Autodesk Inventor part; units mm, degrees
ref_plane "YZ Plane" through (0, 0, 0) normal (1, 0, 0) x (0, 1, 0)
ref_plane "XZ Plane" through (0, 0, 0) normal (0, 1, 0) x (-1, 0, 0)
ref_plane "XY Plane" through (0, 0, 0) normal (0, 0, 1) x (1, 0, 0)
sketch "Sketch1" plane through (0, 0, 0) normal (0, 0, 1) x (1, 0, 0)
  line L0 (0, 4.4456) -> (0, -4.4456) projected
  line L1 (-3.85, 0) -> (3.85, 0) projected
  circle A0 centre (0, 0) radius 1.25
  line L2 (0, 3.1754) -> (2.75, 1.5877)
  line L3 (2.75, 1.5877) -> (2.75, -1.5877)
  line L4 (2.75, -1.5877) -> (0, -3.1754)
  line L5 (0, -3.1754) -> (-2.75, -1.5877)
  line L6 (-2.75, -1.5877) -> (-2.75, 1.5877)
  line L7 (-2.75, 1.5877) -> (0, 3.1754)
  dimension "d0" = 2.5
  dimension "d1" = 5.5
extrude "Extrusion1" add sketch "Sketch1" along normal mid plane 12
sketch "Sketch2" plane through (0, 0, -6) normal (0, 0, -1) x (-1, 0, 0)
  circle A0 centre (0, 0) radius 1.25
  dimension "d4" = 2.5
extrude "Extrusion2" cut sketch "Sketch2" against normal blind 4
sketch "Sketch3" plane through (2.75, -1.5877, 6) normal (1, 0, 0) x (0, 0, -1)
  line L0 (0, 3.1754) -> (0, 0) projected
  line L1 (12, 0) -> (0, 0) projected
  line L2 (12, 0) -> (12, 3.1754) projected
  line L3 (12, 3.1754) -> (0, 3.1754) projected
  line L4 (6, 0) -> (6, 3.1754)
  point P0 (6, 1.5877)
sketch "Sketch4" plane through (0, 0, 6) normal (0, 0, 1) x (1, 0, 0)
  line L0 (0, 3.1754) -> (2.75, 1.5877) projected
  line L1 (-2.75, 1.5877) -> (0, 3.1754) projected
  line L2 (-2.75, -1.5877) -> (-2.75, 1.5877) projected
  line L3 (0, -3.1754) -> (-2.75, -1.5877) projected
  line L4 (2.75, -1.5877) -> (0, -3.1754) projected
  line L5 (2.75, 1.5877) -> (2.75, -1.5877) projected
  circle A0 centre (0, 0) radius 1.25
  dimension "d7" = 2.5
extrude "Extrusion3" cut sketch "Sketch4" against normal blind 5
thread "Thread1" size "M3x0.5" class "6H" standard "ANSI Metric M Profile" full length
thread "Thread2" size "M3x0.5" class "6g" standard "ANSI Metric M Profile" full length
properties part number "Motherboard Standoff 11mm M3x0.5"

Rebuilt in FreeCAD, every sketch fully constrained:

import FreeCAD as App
import Part
import Sketcher

V = App.Vector
Q = App.Units.Quantity


def add_polygon(sketch, points):
    """Adds a closed chain of lines whose ends are joined by coincident constraints."""
    first, n = sketch.GeometryCount, len(points)
    for a, b in zip(points, points[1:] + points[:1]):
        sketch.addGeometry(Part.LineSegment(App.Vector(*a, 0), App.Vector(*b, 0)), False)
    for i in range(n):
        sketch.addConstraint(Sketcher.Constraint("Coincident", first + i, 2, first + (i + 1) % n, 1))

doc = App.newDocument("Part")
body = doc.addObject("PartDesign::Body", "Body")

# Sketch on XY plane
sketch1 = body.newObject("Sketcher::SketchObject", "Sketch")
sketch1.AttachmentSupport = (doc.getObject("XY_Plane"), [""])
sketch1.MapMode = "FlatFace"
add_polygon(sketch1, [(2.8, 1.6), (0, 3.2), (-2.8, 1.6), (-2.8, -1.6), (0, -3.2), (2.8, -1.6)])  # lines 0-5
sketch1.addConstraint([
    Sketcher.Constraint("Vertical", 2),
    Sketcher.Constraint("Vertical", 5),
    Sketcher.Constraint("Symmetric", 0, 2, 3, 2, -1, 1),
    Sketcher.Constraint("Symmetric", 1, 2, 4, 2, -1, 1),
    Sketcher.Constraint("PointOnObject", 0, 2, -2),
    Sketcher.Constraint("Parallel", 0, 3),
    Sketcher.Constraint("Horizontal", 2, 2, 4, 2),
    Sketcher.Constraint("DistanceX", 2, 2, 4, 2, Q("5.5 mm")),
    Sketcher.Constraint("Angle", 0, Q("150.0002 deg")),
    Sketcher.Constraint("DistanceY", 2, 2, 2, 1, Q("3.1754 mm")),
])
pad1 = body.newObject("PartDesign::Pad", "Pad")
pad1.Profile = sketch1
pad1.Length = 12
pad1.Midplane = True

# Sketch on XY plane
sketch2 = body.newObject("Sketcher::SketchObject", "Sketch001")
sketch2.AttachmentSupport = (doc.getObject("XY_Plane"), [""])
sketch2.MapMode = "FlatFace"
sketch2.AttachmentOffset = App.Placement(V(0, 0, -6), App.Rotation())
sketch2.addGeometry(Part.Circle(V(0, 0, 0), V(0, 0, 1), 1.2), False)
sketch2.addConstraint([
    Sketcher.Constraint("Coincident", 0, 3, -1, 1),
    Sketcher.Constraint("Diameter", 0, Q("2.5 mm")),
])
pocket1 = body.newObject("PartDesign::Pocket", "Pocket")
pocket1.Profile = sketch2
pocket1.Length = 4
pocket1.Reversed = True

# Sketch on XY plane
sketch3 = body.newObject("Sketcher::SketchObject", "Sketch002")
sketch3.AttachmentSupport = (doc.getObject("XY_Plane"), [""])
sketch3.MapMode = "FlatFace"
sketch3.AttachmentOffset = App.Placement(V(0, 0, 6), App.Rotation())
add_polygon(sketch3, [(2.8, 1.6), (0, 3.2), (-2.8, 1.6), (-2.8, -1.6), (0, -3.2), (2.8, -1.6)])  # lines 0-5
sketch3.addGeometry(Part.Circle(V(0, 0, 0), V(0, 0, 1), 1.2), False)  # 6
sketch3.addConstraint([
    Sketcher.Constraint("Vertical", 2),
    Sketcher.Constraint("Vertical", 5),
    Sketcher.Constraint("Coincident", 6, 3, -1, 1),
    Sketcher.Constraint("Symmetric", 0, 2, 3, 2, -1, 1),
    Sketcher.Constraint("Symmetric", 1, 2, 4, 2, -1, 1),
    Sketcher.Constraint("PointOnObject", 0, 2, -2),
    Sketcher.Constraint("Parallel", 0, 3),
    Sketcher.Constraint("Horizontal", 2, 2, 4, 2),
    Sketcher.Constraint("Diameter", 6, Q("2.5 mm")),
    Sketcher.Constraint("Angle", 0, Q("150.0002 deg")),
    Sketcher.Constraint("DistanceX", 2, 2, 4, 2, Q("5.5 mm")),
    Sketcher.Constraint("DistanceY", 2, 2, 2, 1, Q("3.1754 mm")),
])
pocket2 = body.newObject("PartDesign::Pocket", "Pocket001")
pocket2.Profile = sketch3
pocket2.Length = 5

doc.recompute()
